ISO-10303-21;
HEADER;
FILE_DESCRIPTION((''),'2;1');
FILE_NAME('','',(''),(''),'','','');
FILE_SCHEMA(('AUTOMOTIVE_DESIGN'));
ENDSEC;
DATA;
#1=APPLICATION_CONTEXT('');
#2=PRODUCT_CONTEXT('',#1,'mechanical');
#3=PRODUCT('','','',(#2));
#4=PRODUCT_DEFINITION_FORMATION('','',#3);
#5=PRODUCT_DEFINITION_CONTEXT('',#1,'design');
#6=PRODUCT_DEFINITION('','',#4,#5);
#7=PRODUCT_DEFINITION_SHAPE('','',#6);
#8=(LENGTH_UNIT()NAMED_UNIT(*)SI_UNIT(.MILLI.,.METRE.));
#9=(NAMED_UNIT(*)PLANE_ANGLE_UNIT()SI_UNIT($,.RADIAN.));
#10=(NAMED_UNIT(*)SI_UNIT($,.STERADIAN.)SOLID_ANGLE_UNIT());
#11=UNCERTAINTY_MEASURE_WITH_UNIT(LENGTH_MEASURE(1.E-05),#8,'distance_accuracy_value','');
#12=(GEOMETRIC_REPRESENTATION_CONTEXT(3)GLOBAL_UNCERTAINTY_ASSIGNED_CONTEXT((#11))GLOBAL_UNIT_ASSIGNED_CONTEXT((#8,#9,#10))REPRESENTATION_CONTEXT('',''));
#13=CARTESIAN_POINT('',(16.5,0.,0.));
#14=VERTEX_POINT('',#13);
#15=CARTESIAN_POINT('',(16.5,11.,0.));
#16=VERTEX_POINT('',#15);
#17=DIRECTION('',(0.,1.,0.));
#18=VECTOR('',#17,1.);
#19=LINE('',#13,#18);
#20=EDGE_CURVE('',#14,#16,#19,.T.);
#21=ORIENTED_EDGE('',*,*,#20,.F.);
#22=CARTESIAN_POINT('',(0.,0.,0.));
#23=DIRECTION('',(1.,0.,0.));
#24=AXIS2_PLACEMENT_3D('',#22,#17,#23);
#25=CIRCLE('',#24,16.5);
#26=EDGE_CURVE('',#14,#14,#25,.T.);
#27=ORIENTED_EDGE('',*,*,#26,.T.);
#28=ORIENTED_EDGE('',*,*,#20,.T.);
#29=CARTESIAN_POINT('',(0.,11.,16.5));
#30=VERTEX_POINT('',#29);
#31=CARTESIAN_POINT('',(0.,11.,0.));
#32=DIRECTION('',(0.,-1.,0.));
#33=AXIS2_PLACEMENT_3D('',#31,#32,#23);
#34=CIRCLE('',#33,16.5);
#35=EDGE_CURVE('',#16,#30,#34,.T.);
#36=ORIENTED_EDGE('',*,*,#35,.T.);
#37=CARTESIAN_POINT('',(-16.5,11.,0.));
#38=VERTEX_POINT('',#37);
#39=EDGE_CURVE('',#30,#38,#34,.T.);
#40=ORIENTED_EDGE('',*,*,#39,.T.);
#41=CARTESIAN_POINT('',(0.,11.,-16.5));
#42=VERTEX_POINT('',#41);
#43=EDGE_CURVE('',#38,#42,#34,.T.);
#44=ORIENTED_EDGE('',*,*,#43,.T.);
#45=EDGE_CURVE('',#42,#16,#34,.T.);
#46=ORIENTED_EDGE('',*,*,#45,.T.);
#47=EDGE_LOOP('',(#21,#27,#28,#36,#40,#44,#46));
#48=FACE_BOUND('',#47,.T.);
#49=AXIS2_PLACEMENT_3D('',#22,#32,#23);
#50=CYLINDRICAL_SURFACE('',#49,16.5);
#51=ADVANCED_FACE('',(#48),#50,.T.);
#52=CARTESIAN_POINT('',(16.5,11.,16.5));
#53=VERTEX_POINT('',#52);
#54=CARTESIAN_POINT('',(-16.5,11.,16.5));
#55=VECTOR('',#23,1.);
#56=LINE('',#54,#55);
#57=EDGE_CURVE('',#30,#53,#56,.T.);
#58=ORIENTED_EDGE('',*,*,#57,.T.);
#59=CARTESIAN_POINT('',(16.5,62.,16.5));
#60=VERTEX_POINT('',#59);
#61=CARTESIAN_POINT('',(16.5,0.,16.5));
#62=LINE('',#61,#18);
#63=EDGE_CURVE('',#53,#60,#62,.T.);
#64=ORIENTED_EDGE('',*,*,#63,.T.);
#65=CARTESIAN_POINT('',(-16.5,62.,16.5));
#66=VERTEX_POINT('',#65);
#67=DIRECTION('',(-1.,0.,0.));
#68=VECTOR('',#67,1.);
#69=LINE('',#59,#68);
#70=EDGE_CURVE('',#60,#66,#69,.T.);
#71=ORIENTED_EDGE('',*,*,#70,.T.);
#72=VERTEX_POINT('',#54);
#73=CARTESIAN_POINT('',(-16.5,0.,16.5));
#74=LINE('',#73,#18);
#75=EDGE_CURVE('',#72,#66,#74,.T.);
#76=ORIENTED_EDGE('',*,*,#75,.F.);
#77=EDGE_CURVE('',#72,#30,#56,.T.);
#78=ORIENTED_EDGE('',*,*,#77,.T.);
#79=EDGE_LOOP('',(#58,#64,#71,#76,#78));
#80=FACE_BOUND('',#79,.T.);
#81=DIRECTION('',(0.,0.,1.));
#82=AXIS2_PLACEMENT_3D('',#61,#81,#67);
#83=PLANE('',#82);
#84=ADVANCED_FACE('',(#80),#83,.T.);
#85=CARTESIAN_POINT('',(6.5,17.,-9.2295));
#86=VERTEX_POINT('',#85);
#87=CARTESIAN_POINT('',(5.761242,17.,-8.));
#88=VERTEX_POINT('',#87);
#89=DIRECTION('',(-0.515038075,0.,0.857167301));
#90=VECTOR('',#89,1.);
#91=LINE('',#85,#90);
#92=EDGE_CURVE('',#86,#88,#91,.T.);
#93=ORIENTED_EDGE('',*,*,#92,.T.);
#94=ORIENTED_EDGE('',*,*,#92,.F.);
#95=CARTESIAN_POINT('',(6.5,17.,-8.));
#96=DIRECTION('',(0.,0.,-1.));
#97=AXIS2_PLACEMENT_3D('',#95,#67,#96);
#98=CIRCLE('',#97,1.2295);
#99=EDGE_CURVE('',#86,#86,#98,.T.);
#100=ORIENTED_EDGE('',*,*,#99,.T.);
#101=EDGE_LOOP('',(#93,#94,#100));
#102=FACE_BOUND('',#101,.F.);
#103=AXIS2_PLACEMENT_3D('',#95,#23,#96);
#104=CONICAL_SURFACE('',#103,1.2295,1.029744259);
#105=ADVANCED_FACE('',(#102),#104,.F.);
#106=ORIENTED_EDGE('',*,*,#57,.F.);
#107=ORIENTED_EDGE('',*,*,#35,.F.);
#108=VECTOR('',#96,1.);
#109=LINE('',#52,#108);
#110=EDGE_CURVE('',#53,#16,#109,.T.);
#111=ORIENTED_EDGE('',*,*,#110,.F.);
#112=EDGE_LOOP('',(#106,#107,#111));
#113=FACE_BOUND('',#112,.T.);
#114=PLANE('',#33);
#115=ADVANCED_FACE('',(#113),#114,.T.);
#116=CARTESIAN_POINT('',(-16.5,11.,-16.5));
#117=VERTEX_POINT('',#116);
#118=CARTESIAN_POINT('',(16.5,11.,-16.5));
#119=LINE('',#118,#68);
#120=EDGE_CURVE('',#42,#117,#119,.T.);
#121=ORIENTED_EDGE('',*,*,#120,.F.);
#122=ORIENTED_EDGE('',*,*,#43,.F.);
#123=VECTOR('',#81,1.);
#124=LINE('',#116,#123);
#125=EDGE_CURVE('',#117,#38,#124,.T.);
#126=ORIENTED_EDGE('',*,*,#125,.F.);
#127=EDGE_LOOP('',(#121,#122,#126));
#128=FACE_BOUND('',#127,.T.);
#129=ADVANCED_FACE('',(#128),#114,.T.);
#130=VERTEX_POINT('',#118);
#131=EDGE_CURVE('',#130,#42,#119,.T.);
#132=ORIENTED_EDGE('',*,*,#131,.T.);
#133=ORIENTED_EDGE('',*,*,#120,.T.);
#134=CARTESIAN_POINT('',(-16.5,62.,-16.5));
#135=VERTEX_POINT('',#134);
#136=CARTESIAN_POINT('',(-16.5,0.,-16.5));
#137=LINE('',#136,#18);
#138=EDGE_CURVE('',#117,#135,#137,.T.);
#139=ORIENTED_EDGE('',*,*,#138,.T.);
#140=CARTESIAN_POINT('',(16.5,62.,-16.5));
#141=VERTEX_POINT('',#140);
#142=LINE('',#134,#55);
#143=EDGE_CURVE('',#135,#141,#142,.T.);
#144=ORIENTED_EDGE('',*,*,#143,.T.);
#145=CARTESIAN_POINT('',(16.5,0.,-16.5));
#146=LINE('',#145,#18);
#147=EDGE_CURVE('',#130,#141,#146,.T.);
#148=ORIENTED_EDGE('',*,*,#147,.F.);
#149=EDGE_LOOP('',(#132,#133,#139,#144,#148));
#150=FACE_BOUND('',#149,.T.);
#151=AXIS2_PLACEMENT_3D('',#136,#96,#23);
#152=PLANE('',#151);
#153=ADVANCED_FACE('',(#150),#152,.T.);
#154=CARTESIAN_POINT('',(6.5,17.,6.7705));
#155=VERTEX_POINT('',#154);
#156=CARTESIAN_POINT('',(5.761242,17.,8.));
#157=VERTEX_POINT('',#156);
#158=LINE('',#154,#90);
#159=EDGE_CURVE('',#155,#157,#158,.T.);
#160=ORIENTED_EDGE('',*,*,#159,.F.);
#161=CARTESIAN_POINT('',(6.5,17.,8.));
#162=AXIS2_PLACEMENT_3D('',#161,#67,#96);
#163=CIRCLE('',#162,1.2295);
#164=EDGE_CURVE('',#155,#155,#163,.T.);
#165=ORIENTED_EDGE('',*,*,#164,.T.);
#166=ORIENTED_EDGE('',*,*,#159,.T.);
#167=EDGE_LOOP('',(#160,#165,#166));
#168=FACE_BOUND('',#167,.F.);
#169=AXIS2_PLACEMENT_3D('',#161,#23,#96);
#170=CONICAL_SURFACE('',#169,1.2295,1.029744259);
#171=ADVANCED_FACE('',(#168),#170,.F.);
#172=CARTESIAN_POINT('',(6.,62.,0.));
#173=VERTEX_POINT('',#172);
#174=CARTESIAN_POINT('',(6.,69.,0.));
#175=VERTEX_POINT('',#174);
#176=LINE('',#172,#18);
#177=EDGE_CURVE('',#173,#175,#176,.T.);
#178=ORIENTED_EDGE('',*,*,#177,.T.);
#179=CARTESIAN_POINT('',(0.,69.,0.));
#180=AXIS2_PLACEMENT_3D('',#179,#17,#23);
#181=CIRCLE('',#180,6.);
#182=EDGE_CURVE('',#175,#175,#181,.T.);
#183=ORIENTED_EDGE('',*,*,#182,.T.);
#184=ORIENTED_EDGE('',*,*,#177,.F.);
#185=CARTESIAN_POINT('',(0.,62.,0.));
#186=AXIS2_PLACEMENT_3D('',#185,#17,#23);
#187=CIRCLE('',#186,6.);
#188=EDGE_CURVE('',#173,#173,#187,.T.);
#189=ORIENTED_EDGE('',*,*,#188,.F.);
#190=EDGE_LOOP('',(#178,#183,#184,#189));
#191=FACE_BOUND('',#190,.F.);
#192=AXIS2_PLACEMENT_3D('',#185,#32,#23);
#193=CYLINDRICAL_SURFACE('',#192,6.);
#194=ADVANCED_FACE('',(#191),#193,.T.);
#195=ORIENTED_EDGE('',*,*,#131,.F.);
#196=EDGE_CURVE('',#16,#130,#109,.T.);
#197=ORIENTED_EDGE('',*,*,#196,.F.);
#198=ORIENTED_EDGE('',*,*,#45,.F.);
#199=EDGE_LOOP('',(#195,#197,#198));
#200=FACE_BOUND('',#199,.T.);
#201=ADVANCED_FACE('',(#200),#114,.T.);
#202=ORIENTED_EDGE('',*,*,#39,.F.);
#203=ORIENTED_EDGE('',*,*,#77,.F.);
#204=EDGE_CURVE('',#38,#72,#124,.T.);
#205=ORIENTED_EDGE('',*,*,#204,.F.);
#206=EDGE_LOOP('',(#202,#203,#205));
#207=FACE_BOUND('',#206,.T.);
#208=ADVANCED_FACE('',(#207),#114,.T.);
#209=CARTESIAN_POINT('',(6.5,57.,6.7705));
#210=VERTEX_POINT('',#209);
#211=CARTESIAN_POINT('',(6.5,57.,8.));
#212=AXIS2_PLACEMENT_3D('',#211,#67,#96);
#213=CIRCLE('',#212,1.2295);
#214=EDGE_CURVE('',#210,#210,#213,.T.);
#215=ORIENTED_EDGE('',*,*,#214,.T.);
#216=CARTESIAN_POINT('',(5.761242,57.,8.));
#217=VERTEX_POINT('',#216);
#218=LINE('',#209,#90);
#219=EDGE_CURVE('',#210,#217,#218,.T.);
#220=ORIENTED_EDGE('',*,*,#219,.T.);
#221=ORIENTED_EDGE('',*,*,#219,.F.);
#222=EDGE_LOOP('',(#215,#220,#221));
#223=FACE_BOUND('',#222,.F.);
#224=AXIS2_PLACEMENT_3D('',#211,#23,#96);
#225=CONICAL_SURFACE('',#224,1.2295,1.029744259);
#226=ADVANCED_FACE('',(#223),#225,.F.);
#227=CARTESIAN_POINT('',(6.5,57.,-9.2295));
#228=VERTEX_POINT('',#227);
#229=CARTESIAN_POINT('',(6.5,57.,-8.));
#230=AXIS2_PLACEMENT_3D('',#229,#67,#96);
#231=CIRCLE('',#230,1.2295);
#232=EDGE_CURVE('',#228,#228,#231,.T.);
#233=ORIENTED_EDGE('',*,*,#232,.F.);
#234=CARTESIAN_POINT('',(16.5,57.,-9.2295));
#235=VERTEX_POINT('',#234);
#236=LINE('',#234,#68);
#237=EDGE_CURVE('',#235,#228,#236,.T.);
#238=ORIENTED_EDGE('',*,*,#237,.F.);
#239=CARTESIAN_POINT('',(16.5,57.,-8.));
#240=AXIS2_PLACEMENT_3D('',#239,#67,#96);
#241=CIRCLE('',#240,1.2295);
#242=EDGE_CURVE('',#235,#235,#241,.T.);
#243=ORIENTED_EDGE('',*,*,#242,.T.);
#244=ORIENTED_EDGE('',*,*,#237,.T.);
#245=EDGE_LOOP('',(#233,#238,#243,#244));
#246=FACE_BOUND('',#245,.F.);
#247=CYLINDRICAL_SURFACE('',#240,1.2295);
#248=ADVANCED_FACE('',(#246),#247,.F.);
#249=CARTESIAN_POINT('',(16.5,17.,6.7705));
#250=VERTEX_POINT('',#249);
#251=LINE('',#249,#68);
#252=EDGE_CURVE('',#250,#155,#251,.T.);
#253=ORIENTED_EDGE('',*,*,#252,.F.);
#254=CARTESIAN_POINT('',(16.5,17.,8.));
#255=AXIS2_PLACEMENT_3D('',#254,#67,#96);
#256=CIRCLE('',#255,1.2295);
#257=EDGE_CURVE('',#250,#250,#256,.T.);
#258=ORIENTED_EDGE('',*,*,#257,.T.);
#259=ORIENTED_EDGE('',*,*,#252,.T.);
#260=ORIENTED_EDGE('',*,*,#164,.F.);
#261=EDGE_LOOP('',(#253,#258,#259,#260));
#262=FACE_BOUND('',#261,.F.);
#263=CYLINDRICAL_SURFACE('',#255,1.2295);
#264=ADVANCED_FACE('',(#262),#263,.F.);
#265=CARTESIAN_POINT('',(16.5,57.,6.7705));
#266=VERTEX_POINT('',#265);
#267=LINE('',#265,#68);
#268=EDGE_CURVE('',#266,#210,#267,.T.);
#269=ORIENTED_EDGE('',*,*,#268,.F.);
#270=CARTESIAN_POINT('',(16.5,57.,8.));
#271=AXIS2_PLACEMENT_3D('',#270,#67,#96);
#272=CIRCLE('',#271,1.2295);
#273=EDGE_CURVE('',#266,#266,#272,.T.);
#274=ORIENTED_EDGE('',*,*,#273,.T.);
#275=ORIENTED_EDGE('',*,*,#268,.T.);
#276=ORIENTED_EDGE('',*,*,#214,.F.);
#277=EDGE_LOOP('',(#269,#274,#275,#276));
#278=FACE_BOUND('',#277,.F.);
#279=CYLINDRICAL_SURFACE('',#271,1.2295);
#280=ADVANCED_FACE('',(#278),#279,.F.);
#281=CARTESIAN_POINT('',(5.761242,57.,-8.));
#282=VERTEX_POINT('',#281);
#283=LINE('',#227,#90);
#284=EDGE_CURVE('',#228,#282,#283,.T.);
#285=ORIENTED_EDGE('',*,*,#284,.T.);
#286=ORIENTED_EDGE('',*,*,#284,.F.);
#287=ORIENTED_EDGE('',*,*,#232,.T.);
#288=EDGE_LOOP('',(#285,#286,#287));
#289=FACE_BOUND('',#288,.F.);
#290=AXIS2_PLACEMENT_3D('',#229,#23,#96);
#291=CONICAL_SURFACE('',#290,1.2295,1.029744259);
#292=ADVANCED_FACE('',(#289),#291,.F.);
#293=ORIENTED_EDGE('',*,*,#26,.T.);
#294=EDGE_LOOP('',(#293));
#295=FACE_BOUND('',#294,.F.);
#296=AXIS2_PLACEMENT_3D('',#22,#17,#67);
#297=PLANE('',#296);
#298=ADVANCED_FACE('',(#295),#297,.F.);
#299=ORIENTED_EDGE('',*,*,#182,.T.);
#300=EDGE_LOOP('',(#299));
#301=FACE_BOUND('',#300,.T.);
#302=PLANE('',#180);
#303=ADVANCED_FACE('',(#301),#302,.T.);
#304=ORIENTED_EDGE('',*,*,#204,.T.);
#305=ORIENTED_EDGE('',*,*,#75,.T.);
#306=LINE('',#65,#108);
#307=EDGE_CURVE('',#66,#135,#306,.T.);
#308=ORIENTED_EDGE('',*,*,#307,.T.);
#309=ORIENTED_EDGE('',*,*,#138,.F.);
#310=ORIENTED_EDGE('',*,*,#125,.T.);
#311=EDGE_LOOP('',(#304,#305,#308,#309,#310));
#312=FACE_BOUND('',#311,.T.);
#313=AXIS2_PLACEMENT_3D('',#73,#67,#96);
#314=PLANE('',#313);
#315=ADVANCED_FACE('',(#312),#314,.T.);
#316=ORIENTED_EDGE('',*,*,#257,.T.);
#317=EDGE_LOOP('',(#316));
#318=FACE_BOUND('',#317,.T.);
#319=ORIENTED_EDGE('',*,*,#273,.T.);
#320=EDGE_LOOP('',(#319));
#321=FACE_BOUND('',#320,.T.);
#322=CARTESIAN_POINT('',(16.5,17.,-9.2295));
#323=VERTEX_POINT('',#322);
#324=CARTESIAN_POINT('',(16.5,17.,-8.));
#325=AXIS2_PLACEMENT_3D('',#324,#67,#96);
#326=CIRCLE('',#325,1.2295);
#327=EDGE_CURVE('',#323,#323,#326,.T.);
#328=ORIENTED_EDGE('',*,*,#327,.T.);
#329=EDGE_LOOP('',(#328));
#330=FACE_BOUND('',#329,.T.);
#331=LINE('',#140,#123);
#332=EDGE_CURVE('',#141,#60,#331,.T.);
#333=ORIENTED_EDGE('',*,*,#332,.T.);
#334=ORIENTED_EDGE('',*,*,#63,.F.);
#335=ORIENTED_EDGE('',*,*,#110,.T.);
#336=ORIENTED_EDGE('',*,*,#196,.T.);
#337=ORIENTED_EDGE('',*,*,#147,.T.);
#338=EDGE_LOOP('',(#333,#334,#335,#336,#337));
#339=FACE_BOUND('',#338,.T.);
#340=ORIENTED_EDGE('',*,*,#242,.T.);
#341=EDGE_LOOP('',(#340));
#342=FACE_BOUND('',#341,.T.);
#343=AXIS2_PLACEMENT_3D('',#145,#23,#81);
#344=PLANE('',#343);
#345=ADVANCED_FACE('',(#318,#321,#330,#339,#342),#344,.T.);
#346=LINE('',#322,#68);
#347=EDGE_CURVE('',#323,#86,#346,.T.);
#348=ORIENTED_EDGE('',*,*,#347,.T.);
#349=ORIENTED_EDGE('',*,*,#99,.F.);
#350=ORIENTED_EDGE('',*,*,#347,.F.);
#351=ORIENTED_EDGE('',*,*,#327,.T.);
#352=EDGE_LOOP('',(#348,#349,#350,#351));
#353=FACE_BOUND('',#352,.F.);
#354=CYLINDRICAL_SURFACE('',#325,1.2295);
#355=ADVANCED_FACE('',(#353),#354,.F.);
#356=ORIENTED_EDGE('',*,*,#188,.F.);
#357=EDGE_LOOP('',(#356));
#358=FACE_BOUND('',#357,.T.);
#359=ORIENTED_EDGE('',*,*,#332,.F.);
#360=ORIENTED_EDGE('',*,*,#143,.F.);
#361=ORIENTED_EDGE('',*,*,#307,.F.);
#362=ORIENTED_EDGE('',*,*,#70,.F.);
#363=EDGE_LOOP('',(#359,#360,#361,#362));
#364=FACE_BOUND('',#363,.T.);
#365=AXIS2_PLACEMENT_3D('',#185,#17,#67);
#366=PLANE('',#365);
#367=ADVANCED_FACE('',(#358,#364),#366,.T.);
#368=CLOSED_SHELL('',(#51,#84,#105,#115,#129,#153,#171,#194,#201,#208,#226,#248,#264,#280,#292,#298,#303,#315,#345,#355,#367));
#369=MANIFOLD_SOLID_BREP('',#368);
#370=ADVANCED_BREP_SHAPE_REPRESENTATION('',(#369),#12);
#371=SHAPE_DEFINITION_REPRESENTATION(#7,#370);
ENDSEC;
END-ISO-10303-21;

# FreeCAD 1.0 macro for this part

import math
import FreeCAD as App
import Part
import Sketcher


def add_polygon(sketch, points):
    """Adds a closed chain of lines whose ends are joined by coincident constraints."""
    first, n = sketch.GeometryCount, len(points)
    for a, b in zip(points, points[1:] + points[:1]):
        sketch.addGeometry(Part.LineSegment(App.Vector(*a, 0), App.Vector(*b, 0)), False)
    for i in range(n):
        sketch.addConstraint(Sketcher.Constraint("Coincident", first + i, 2, first + (i + 1) % n, 1))

doc = App.newDocument("Part")
body = doc.addObject("PartDesign::Body", "Body")

# Sketch on XZ plane
sketch1 = body.newObject("Sketcher::SketchObject", "Sketch")
sketch1.AttachmentSupport = (doc.getObject("XZ_Plane"), [""])
sketch1.MapMode = "FlatFace"
add_polygon(sketch1, [(-16, 16), (16, 16), (16, -16), (-16, -16)])  # lines 0-3
sketch1.addConstraint([
    Sketcher.Constraint("Horizontal", 0),
    Sketcher.Constraint("Vertical", 1),
    Sketcher.Constraint("Horizontal", 2),
    Sketcher.Constraint("Vertical", 3),
    Sketcher.Constraint("Symmetric", 0, 2, 2, 2, -1, 1),
    Sketcher.Constraint("Equal", 2, 1),
    Sketcher.Constraint("DistanceX", 0, 1, 0, 2, 33.0),
])
pad1 = body.newObject("PartDesign::Pad", "Pad")
pad1.Profile = sketch1
pad1.Length = 62
pad1.Reversed = True

# Sketch on XZ plane
sketch2 = body.newObject("Sketcher::SketchObject", "Sketch001")
sketch2.AttachmentSupport = (doc.getObject("XZ_Plane"), [""])
sketch2.MapMode = "FlatFace"
sketch2.AttachmentOffset = App.Placement(App.Vector(0, 0, -62), App.Rotation())
sketch2.addGeometry(Part.Circle(App.Vector(0, 0, 0), App.Vector(0, 0, 1), 6), False)
sketch2.addConstraint([
    Sketcher.Constraint("Coincident", 0, 3, -1, 1),
    Sketcher.Constraint("Diameter", 0, 12.0),
])
pad2 = body.newObject("PartDesign::Pad", "Pad001")
pad2.Profile = sketch2
pad2.Length = 7
pad2.Reversed = True

# Sketch on YZ plane
sketch3 = body.newObject("Sketcher::SketchObject", "Sketch002")
sketch3.AttachmentSupport = (doc.getObject("YZ_Plane"), [""])
sketch3.MapMode = "FlatFace"
sketch3.AttachmentOffset = App.Placement(App.Vector(0, 0, 16.5), App.Rotation())
sketch3.addGeometry([
    Part.Circle(App.Vector(57, 8, 0), App.Vector(0, 0, 1), 1.2),
    Part.Circle(App.Vector(57, -8, 0), App.Vector(0, 0, 1), 1.2),
    Part.Circle(App.Vector(17, 8, 0), App.Vector(0, 0, 1), 1.2),
    Part.Circle(App.Vector(17, -8, 0), App.Vector(0, 0, 1), 1.2),
], False)
sketch3.addConstraint([
    Sketcher.Constraint("Equal", 0, 1),
    Sketcher.Constraint("Equal", 1, 2),
    Sketcher.Constraint("Equal", 2, 3),
    Sketcher.Constraint("Symmetric", 0, 3, 1, 3, -1),
    Sketcher.Constraint("Symmetric", 2, 3, 3, 3, -1),
    Sketcher.Constraint("Horizontal", 0, 3, 2, 3),
    Sketcher.Constraint("Diameter", 0, 2.459),
    Sketcher.Constraint("DistanceX", -1, 1, 0, 3, 57.0),
    Sketcher.Constraint("DistanceY", -1, 1, 0, 3, 8.0),
    Sketcher.Constraint("DistanceX", -1, 1, 2, 3, 17.0),
])
doc.recompute()
hole = body.newObject("PartDesign::Hole", "Hole")
hole.Profile = sketch3
hole.ThreadType = "None"
hole.Diameter = 2.459
hole.DepthType = "Dimension"
hole.Depth = 10
hole.DrillPoint = "Angled"
hole.DrillPointAngle = 118

# Sketch on XZ plane
sketch4 = body.newObject("Sketcher::SketchObject", "Sketch003")
sketch4.AttachmentSupport = (doc.getObject("XZ_Plane"), [""])
sketch4.MapMode = "FlatFace"
sketch4.addGeometry([
    Part.LineSegment(App.Vector(16, -16, 0), App.Vector(16, 0, 0)),  # 0
    Part.ArcOfCircle(Part.Circle(App.Vector(0, 0, 0), App.Vector(0, 0, 1), 16), math.radians(-90), math.radians(0)),  # 1
    Part.LineSegment(App.Vector(0, -16, 0), App.Vector(16, -16, 0)),  # 2
    Part.ArcOfCircle(Part.Circle(App.Vector(0, 0, 0), App.Vector(0, 0, 1), 16), math.radians(0), math.radians(90)),  # 3
    Part.LineSegment(App.Vector(16, 0, 0), App.Vector(16, 16, 0)),  # 4
    Part.LineSegment(App.Vector(16, 16, 0), App.Vector(0, 16, 0)),  # 5
    Part.ArcOfCircle(Part.Circle(App.Vector(0, 0, 0), App.Vector(0, 0, 1), 16), math.radians(90), math.radians(180)),  # 6
    Part.LineSegment(App.Vector(0, 16, 0), App.Vector(-16, 16, 0)),  # 7
    Part.LineSegment(App.Vector(-16, 16, 0), App.Vector(-16, 0, 0)),  # 8
    Part.LineSegment(App.Vector(-16, -16, 0), App.Vector(0, -16, 0)),  # 9
    Part.ArcOfCircle(Part.Circle(App.Vector(0, 0, 0), App.Vector(0, 0, 1), 16), math.radians(-180), math.radians(-90)),  # 10
    Part.LineSegment(App.Vector(-16, 0, 0), App.Vector(-16, -16, 0)),  # 11
], False)
sketch4.addConstraint([
    Sketcher.Constraint("Tangent", 0, 2, 1, 2),
    Sketcher.Constraint("Tangent", 1, 1, 2, 1),
    Sketcher.Constraint("Coincident", 2, 2, 0, 1),
    Sketcher.Constraint("Tangent", 3, 1, 4, 1),
    Sketcher.Constraint("Coincident", 4, 2, 5, 1),
    Sketcher.Constraint("Tangent", 5, 2, 3, 2),
    Sketcher.Constraint("Tangent", 6, 1, 7, 1),
    Sketcher.Constraint("Coincident", 7, 2, 8, 1),
    Sketcher.Constraint("Tangent", 8, 2, 6, 2),
    Sketcher.Constraint("Tangent", 9, 2, 10, 2),
    Sketcher.Constraint("Tangent", 10, 1, 11, 1),
    Sketcher.Constraint("Coincident", 11, 2, 9, 1),
    Sketcher.Constraint("Vertical", 0),
    Sketcher.Constraint("Horizontal", 2),
    Sketcher.Constraint("Vertical", 4),
    Sketcher.Constraint("Horizontal", 5),
    Sketcher.Constraint("Horizontal", 7),
    Sketcher.Constraint("Vertical", 8),
    Sketcher.Constraint("Horizontal", 9),
    Sketcher.Constraint("Vertical", 11),
    Sketcher.Constraint("Coincident", 1, 3, -1, 1),
    Sketcher.Constraint("Coincident", 3, 3, -1, 1),
    Sketcher.Constraint("Coincident", 6, 3, -1, 1),
    Sketcher.Constraint("Coincident", 10, 3, -1, 1),
    Sketcher.Constraint("Equal", 1, 3),
    Sketcher.Constraint("Equal", 3, 6),
    Sketcher.Constraint("Equal", 6, 10),
    Sketcher.Constraint("Radius", 1, 16.5),
])
pocket1 = body.newObject("PartDesign::Pocket", "Pocket")
pocket1.Profile = sketch4
pocket1.Length = 11

doc.recompute()
